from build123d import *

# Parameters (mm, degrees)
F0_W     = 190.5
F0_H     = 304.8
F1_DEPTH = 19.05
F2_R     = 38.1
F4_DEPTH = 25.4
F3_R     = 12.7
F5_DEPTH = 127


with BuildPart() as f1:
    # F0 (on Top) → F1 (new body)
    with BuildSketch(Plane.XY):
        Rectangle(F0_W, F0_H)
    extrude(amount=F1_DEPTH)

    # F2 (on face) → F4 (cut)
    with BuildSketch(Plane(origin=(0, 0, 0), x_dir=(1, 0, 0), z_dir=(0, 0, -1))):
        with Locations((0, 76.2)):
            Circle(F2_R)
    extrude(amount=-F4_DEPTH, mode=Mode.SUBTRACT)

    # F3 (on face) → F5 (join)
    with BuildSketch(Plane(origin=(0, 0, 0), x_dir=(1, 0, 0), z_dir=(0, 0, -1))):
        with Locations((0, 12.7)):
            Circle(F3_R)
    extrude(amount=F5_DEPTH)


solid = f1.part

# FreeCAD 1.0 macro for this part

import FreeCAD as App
import Part
import Sketcher
from FreeCAD import Vector
Q = App.Units.Quantity

doc = App.newDocument("Part")
body = doc.addObject("PartDesign::Body", "Body")

sketch1 = body.newObject("Sketcher::SketchObject", "Sketch")
sketch1.AttachmentSupport = (doc.getObject("XY_Plane"), [""])
sketch1.MapMode = "FlatFace"
sketch1.addGeometry(Part.LineSegment(Vector(-95.25, 152.4, 0), Vector(-95.25, -152.4, 0)), False)
sketch1.addGeometry(Part.LineSegment(Vector(-95.25, -152.4, 0), Vector(95.25, -152.4, 0)), False)
sketch1.addGeometry(Part.LineSegment(Vector(95.25, -152.4, 0), Vector(95.25, 152.4, 0)), False)
sketch1.addGeometry(Part.LineSegment(Vector(95.25, 152.4, 0), Vector(-95.25, 152.4, 0)), False)
sketch1.addConstraint(Sketcher.Constraint("Coincident", 0, 2, 1, 1))
sketch1.addConstraint(Sketcher.Constraint("Coincident", 1, 2, 2, 1))
sketch1.addConstraint(Sketcher.Constraint("Coincident", 2, 2, 3, 1))
sketch1.addConstraint(Sketcher.Constraint("Coincident", 3, 2, 0, 1))
sketch1.addConstraint(Sketcher.Constraint("Vertical", 0))
sketch1.addConstraint(Sketcher.Constraint("Horizontal", 1))
sketch1.addConstraint(Sketcher.Constraint("Vertical", 2))
sketch1.addConstraint(Sketcher.Constraint("Horizontal", 3))
sketch1.addConstraint(Sketcher.Constraint("Symmetric", 0, 2, 2, 2, -1, 1))
sketch1.addConstraint(Sketcher.Constraint("DistanceY", 0, 2, 0, 1, Q("12 in")))
sketch1.addConstraint(Sketcher.Constraint("DistanceX", 1, 1, 1, 2, Q("7.5 in")))
pad1 = body.newObject("PartDesign::Pad", "Pad")
pad1.Profile = sketch1
pad1.Length = Q("0.75 in")

sketch2 = body.newObject("Sketcher::SketchObject", "Sketch001")
sketch2.AttachmentSupport = (doc.getObject("XY_Plane"), [""])
sketch2.MapMode = "FlatFace"
sketch2.addGeometry(Part.Circle(Vector(0, -76.2, 0), Vector(0, 0, 1), 38.1), False)
sketch2.addConstraint(Sketcher.Constraint("PointOnObject", 0, 3, -2))
sketch2.addConstraint(Sketcher.Constraint("Diameter", 0, Q("3 in")))
sketch2.addConstraint(Sketcher.Constraint("DistanceY", 0, 3, -1, 1, Q("3 in")))
pocket1 = body.newObject("PartDesign::Pocket", "Pocket")
pocket1.Profile = sketch2
pocket1.Length = Q("1 in")
pocket1.Reversed = True

sketch3 = body.newObject("Sketcher::SketchObject", "Sketch002")
sketch3.AttachmentSupport = (doc.getObject("XY_Plane"), [""])
sketch3.MapMode = "FlatFace"
sketch3.addGeometry(Part.Circle(Vector(0, -12.7, 0), Vector(0, 0, 1), 12.7), False)
sketch3.addConstraint(Sketcher.Constraint("PointOnObject", 0, 3, -2))
sketch3.addConstraint(Sketcher.Constraint("Diameter", 0, Q("1 in")))
sketch3.addConstraint(Sketcher.Constraint("DistanceY", 0, 3, -1, 1, Q("0.5 in")))
pad2 = body.newObject("PartDesign::Pad", "Pad001")
pad2.Profile = sketch3
pad2.Length = Q("5 in")
pad2.Reversed = True

doc.recompute()
